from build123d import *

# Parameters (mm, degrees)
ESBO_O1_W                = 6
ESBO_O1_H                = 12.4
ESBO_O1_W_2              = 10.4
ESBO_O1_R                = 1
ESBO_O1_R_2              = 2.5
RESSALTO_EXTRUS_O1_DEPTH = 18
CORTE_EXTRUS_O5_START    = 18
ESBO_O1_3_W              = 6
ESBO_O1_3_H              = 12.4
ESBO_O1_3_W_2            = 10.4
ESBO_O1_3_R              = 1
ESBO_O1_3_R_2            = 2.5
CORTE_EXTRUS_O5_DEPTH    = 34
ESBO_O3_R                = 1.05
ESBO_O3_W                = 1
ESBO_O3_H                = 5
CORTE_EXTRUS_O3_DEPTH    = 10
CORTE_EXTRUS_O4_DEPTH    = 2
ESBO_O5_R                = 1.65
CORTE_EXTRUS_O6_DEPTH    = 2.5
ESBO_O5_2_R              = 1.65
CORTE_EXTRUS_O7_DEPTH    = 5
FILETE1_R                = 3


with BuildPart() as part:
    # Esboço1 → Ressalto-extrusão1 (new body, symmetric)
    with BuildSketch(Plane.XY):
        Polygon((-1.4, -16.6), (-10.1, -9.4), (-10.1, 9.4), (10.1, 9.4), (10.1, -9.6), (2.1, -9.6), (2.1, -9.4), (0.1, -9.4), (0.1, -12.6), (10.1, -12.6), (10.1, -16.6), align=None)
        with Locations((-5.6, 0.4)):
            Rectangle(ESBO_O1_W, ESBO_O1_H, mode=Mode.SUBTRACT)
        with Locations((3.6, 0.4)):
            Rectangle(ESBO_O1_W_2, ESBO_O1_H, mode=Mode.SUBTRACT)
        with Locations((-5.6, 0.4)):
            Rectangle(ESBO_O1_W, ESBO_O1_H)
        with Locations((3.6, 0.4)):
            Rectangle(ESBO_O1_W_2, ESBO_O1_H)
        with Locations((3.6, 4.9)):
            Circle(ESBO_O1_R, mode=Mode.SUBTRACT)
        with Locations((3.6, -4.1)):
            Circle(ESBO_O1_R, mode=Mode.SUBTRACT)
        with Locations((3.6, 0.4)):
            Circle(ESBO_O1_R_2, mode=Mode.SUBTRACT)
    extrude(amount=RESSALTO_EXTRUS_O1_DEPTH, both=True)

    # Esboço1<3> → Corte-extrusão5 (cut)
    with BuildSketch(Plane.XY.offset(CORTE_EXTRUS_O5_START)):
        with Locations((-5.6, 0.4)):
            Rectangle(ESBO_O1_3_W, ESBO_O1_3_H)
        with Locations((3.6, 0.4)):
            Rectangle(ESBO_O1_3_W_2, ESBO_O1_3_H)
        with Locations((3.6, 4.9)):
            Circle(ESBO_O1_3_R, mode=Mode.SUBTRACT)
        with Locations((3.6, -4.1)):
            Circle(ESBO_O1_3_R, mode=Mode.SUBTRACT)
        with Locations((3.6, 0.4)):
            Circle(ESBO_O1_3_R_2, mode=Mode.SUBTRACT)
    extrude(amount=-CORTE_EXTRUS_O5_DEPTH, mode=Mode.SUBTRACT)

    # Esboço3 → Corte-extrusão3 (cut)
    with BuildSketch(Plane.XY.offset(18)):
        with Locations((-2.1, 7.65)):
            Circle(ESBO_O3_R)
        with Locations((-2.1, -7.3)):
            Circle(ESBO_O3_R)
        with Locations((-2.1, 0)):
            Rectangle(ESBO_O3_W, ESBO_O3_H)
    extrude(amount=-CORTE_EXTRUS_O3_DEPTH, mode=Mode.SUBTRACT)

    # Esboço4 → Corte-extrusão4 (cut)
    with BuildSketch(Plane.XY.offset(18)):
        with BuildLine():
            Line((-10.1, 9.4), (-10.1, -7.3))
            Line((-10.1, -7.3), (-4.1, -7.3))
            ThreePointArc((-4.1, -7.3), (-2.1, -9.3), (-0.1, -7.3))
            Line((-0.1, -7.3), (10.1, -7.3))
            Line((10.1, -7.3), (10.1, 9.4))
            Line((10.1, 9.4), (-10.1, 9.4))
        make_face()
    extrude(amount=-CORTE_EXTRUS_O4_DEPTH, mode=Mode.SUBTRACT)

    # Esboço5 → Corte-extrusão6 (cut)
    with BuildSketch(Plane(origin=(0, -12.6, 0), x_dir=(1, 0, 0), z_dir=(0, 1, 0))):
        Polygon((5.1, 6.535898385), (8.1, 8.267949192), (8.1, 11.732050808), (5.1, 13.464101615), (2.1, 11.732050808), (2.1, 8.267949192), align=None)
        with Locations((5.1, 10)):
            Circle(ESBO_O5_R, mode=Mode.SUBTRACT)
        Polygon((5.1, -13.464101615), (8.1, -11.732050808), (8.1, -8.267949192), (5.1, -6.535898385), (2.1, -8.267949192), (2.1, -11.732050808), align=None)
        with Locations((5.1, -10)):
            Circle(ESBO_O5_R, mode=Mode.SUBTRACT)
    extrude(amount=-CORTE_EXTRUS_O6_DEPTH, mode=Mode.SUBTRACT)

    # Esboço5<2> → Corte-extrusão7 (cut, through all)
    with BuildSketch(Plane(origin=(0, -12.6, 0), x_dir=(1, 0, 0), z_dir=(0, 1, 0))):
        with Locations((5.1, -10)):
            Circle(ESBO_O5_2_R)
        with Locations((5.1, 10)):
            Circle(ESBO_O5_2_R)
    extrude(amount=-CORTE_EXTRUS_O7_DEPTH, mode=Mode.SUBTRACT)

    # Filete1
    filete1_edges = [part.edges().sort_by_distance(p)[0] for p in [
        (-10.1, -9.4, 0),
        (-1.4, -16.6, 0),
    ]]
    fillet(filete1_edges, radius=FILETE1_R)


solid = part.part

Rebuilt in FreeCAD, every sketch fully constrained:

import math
import FreeCAD as App
import Part
import Sketcher

V = App.Vector
Q = App.Units.Quantity


def edges_at(feature, points):
    """Names of the edges that pass closest to the given points."""
    edges = feature.Shape.Edges
    near = lambda p: min(range(len(edges)), key=lambda i: edges[i].distToShape(Part.Vertex(*p))[0])
    return sorted({f"Edge{near(p) + 1}" for p in points})

doc = App.newDocument("Part")
body = doc.addObject("PartDesign::Body", "Body")

# Sketch on XY plane
sketch1 = body.newObject("Sketcher::SketchObject", "Sketch")
sketch1.AttachmentSupport = (doc.getObject("XY_Plane"), [""])
sketch1.MapMode = "FlatFace"
sketch1.addGeometry(Part.LineSegment(V(-10.1, -9.4, 0), V(-1.4, -16.6, 0)), False)
sketch1.addGeometry(Part.LineSegment(V(-1.4, -16.6, 0), V(10.1, -16.6, 0)), False)
sketch1.addGeometry(Part.LineSegment(V(10.1, -16.6, 0), V(10.1, -12.6, 0)), False)
sketch1.addGeometry(Part.LineSegment(V(10.1, -12.6, 0), V(0.1, -12.6, 0)), False)
sketch1.addGeometry(Part.LineSegment(V(0.1, -12.6, 0), V(0.1, -9.4, 0)), False)
sketch1.addGeometry(Part.LineSegment(V(0.1, -9.4, 0), V(2.1, -9.4, 0)), False)
sketch1.addGeometry(Part.LineSegment(V(2.1, -9.4, 0), V(2.1, -9.6, 0)), False)
sketch1.addGeometry(Part.LineSegment(V(2.1, -9.6, 0), V(10.1, -9.6, 0)), False)
sketch1.addGeometry(Part.LineSegment(V(10.1, -9.6, 0), V(10.1, 9.4, 0)), False)
sketch1.addGeometry(Part.LineSegment(V(10.1, 9.4, 0), V(-10.1, 9.4, 0)), False)
sketch1.addGeometry(Part.LineSegment(V(-10.1, 9.4, 0), V(-10.1, -9.4, 0)), False)
sketch1.addGeometry(Part.Circle(V(3.6, -4.1, 0), V(0, 0, 1), 1), False)
sketch1.addGeometry(Part.Circle(V(3.6, 0.4, 0), V(0, 0, 1), 2.5), False)
sketch1.addGeometry(Part.Circle(V(3.6, 4.9, 0), V(0, 0, 1), 1), False)
sketch1.addConstraint(Sketcher.Constraint("Coincident", 0, 2, 1, 1))
sketch1.addConstraint(Sketcher.Constraint("Coincident", 1, 2, 2, 1))
sketch1.addConstraint(Sketcher.Constraint("Coincident", 2, 2, 3, 1))
sketch1.addConstraint(Sketcher.Constraint("Coincident", 3, 2, 4, 1))
sketch1.addConstraint(Sketcher.Constraint("Coincident", 4, 2, 5, 1))
sketch1.addConstraint(Sketcher.Constraint("Coincident", 5, 2, 6, 1))
sketch1.addConstraint(Sketcher.Constraint("Coincident", 6, 2, 7, 1))
sketch1.addConstraint(Sketcher.Constraint("Coincident", 7, 2, 8, 1))
sketch1.addConstraint(Sketcher.Constraint("Coincident", 8, 2, 9, 1))
sketch1.addConstraint(Sketcher.Constraint("Coincident", 9, 2, 10, 1))
sketch1.addConstraint(Sketcher.Constraint("Coincident", 10, 2, 0, 1))
sketch1.addConstraint(Sketcher.Constraint("Horizontal", 1))
sketch1.addConstraint(Sketcher.Constraint("Vertical", 2))
sketch1.addConstraint(Sketcher.Constraint("Horizontal", 3))
sketch1.addConstraint(Sketcher.Constraint("Vertical", 4))
sketch1.addConstraint(Sketcher.Constraint("Horizontal", 5))
sketch1.addConstraint(Sketcher.Constraint("Vertical", 6))
sketch1.addConstraint(Sketcher.Constraint("Horizontal", 7))
sketch1.addConstraint(Sketcher.Constraint("Vertical", 8))
sketch1.addConstraint(Sketcher.Constraint("Horizontal", 9))
sketch1.addConstraint(Sketcher.Constraint("Vertical", 10))
sketch1.addConstraint(Sketcher.Constraint("Equal", 11, 13))
sketch1.addConstraint(Sketcher.Constraint("Symmetric", 8, 2, 10, 2, -1, 1))
sketch1.addConstraint(Sketcher.Constraint("Horizontal", 5, 2, 10, 2))
sketch1.addConstraint(Sketcher.Constraint("Vertical", 11, 3, 12, 3))
sketch1.addConstraint(Sketcher.Constraint("Vertical", 12, 3, 13, 3))
sketch1.addConstraint(Sketcher.Constraint("Vertical", 2, 2, 7, 2))
sketch1.addConstraint(Sketcher.Constraint("Diameter", 11, 2.0))
sketch1.addConstraint(Sketcher.Constraint("Diameter", 12, 5.0))
sketch1.addConstraint(Sketcher.Constraint("DistanceX", 3, 2, 3, 1, 10.0))
sketch1.addConstraint(Sketcher.Constraint("DistanceX", 5, 1, 5, 2, 2.0))
sketch1.addConstraint(Sketcher.Constraint("DistanceY", 2, 1, 2, 2, 4.0))
sketch1.addConstraint(Sketcher.Constraint("DistanceY", 8, 1, 8, 2, 19.0))
sketch1.addConstraint(Sketcher.Constraint("DistanceX", 1, 1, 1, 2, 11.5))
sketch1.addConstraint(Sketcher.Constraint("DistanceX", 9, 2, 9, 1, 20.2))
sketch1.addConstraint(Sketcher.Constraint("DistanceY", 4, 1, 4, 2, 3.2))
sketch1.addConstraint(Sketcher.Constraint("DistanceY", 6, 2, 6, 1, 0.2))
sketch1.addConstraint(Sketcher.Constraint("DistanceY", 11, 3, 13, 3, 9.0))
sketch1.addConstraint(Sketcher.Constraint("DistanceX", 0, 2, 11, 3, 5.0))
sketch1.addConstraint(Sketcher.Constraint("DistanceY", 0, 2, 12, 3, 17.0))
sketch1.addConstraint(Sketcher.Constraint("DistanceY", 11, 3, -1, 1, 4.1))
pad1 = body.newObject("PartDesign::Pad", "Pad")
pad1.Profile = sketch1
pad1.Length = 36
pad1.Midplane = True

# Sketch on XY plane
sketch2 = body.newObject("Sketcher::SketchObject", "Sketch001")
sketch2.AttachmentSupport = (doc.getObject("XY_Plane"), [""])
sketch2.MapMode = "FlatFace"
sketch2.AttachmentOffset = App.Placement(V(0, 0, 18), App.Rotation())
sketch2.addGeometry(Part.LineSegment(V(-8.6, 6.6, 0), V(-8.6, -5.8, 0)), False)
sketch2.addGeometry(Part.LineSegment(V(-8.6, -5.8, 0), V(-2.6, -5.8, 0)), False)
sketch2.addGeometry(Part.LineSegment(V(-2.6, -5.8, 0), V(-2.6, 6.6, 0)), False)
sketch2.addGeometry(Part.LineSegment(V(-2.6, 6.6, 0), V(-8.6, 6.6, 0)), False)
sketch2.addGeometry(Part.LineSegment(V(-1.6, 6.6, 0), V(-1.6, -5.8, 0)), False)
sketch2.addGeometry(Part.LineSegment(V(-1.6, -5.8, 0), V(8.8, -5.8, 0)), False)
sketch2.addGeometry(Part.LineSegment(V(8.8, -5.8, 0), V(8.8, 6.6, 0)), False)
sketch2.addGeometry(Part.LineSegment(V(8.8, 6.6, 0), V(-1.6, 6.6, 0)), False)
sketch2.addGeometry(Part.Circle(V(3.6, -4.1, 0), V(0, 0, 1), 1), False)
sketch2.addGeometry(Part.Circle(V(3.6, 0.4, 0), V(0, 0, 1), 2.5), False)
sketch2.addGeometry(Part.Circle(V(3.6, 4.9, 0), V(0, 0, 1), 1), False)
sketch2.addConstraint(Sketcher.Constraint("Coincident", 0, 2, 1, 1))
sketch2.addConstraint(Sketcher.Constraint("Coincident", 1, 2, 2, 1))
sketch2.addConstraint(Sketcher.Constraint("Coincident", 2, 2, 3, 1))
sketch2.addConstraint(Sketcher.Constraint("Coincident", 3, 2, 0, 1))
sketch2.addConstraint(Sketcher.Constraint("Coincident", 4, 2, 5, 1))
sketch2.addConstraint(Sketcher.Constraint("Coincident", 5, 2, 6, 1))
sketch2.addConstraint(Sketcher.Constraint("Coincident", 6, 2, 7, 1))
sketch2.addConstraint(Sketcher.Constraint("Coincident", 7, 2, 4, 1))
sketch2.addConstraint(Sketcher.Constraint("Vertical", 0))
sketch2.addConstraint(Sketcher.Constraint("Horizontal", 1))
sketch2.addConstraint(Sketcher.Constraint("Vertical", 2))
sketch2.addConstraint(Sketcher.Constraint("Horizontal", 3))
sketch2.addConstraint(Sketcher.Constraint("Vertical", 4))
sketch2.addConstraint(Sketcher.Constraint("Horizontal", 5))
sketch2.addConstraint(Sketcher.Constraint("Vertical", 6))
sketch2.addConstraint(Sketcher.Constraint("Horizontal", 7))
sketch2.addConstraint(Sketcher.Constraint("Equal", 8, 10))
sketch2.addConstraint(Sketcher.Constraint("Horizontal", 1, 2, 4, 2))
sketch2.addConstraint(Sketcher.Constraint("Horizontal", 3, 2, 6, 2))
sketch2.addConstraint(Sketcher.Constraint("Vertical", 8, 3, 9, 3))
sketch2.addConstraint(Sketcher.Constraint("Vertical", 9, 3, 10, 3))
sketch2.addConstraint(Sketcher.Constraint("Diameter", 8, 2.0))
sketch2.addConstraint(Sketcher.Constraint("Diameter", 9, 5.0))
sketch2.addConstraint(Sketcher.Constraint("DistanceX", 1, 1, 1, 2, 6.0))
sketch2.addConstraint(Sketcher.Constraint("DistanceX", 5, 1, 5, 2, 10.4))
sketch2.addConstraint(Sketcher.Constraint("DistanceY", 0, 2, 0, 1, 12.4))
sketch2.addConstraint(Sketcher.Constraint("DistanceY", 8, 3, 10, 3, 9.0))
sketch2.addConstraint(Sketcher.Constraint("DistanceX", 1, 2, 4, 2, 1.0))
sketch2.addConstraint(Sketcher.Constraint("DistanceX", -1, 1, 8, 3, 3.6))
sketch2.addConstraint(Sketcher.Constraint("DistanceY", 8, 3, -1, 1, 4.1))
sketch2.addConstraint(Sketcher.Constraint("DistanceY", -1, 1, 9, 3, 0.4))
sketch2.addConstraint(Sketcher.Constraint("DistanceX", 0, 2, -1, 1, 8.6))
sketch2.addConstraint(Sketcher.Constraint("DistanceY", 0, 2, -1, 1, 5.8))
pocket1 = body.newObject("PartDesign::Pocket", "Pocket")
pocket1.Profile = sketch2
pocket1.Length = 34

# Sketch on XY plane
sketch3 = body.newObject("Sketcher::SketchObject", "Sketch002")
sketch3.AttachmentSupport = (doc.getObject("XY_Plane"), [""])
sketch3.MapMode = "FlatFace"
sketch3.AttachmentOffset = App.Placement(V(0, 0, 18), App.Rotation())
sketch3.addGeometry(Part.Circle(V(-2.1, 7.7, 0), V(0, 0, 1), 1.1), False)
sketch3.addGeometry(Part.Circle(V(-2.1, -7.3, 0), V(0, 0, 1), 1.1), False)
sketch3.addGeometry(Part.LineSegment(V(-2.6, 2.5, 0), V(-2.6, -2.5, 0)), False)
sketch3.addGeometry(Part.LineSegment(V(-2.6, -2.5, 0), V(-1.6, -2.5, 0)), False)
sketch3.addGeometry(Part.LineSegment(V(-1.6, -2.5, 0), V(-1.6, 2.5, 0)), False)
sketch3.addGeometry(Part.LineSegment(V(-1.6, 2.5, 0), V(-2.6, 2.5, 0)), False)
sketch3.addConstraint(Sketcher.Constraint("Coincident", 2, 2, 3, 1))
sketch3.addConstraint(Sketcher.Constraint("Coincident", 3, 2, 4, 1))
sketch3.addConstraint(Sketcher.Constraint("Coincident", 4, 2, 5, 1))
sketch3.addConstraint(Sketcher.Constraint("Coincident", 5, 2, 2, 1))
sketch3.addConstraint(Sketcher.Constraint("Vertical", 2))
sketch3.addConstraint(Sketcher.Constraint("Horizontal", 3))
sketch3.addConstraint(Sketcher.Constraint("Vertical", 4))
sketch3.addConstraint(Sketcher.Constraint("Horizontal", 5))
sketch3.addConstraint(Sketcher.Constraint("Equal", 0, 1))
sketch3.addConstraint(Sketcher.Constraint("Vertical", 0, 3, 1, 3))
sketch3.addConstraint(Sketcher.Constraint("Diameter", 0, 2.1))
sketch3.addConstraint(Sketcher.Constraint("DistanceX", 3, 1, 3, 2, 1.0))
sketch3.addConstraint(Sketcher.Constraint("DistanceY", 2, 2, 2, 1, 5.0))
sketch3.addConstraint(Sketcher.Constraint("DistanceX", 0, 3, -1, 1, 2.1))
sketch3.addConstraint(Sketcher.Constraint("DistanceY", 1, 3, -1, 1, 7.3))
sketch3.addConstraint(Sketcher.Constraint("DistanceX", 2, 2, -1, 1, 2.6))
sketch3.addConstraint(Sketcher.Constraint("DistanceY", 2, 2, -1, 1, 2.5))
sketch3.addConstraint(Sketcher.Constraint("DistanceY", -1, 1, 0, 3, 7.65))
pocket2 = body.newObject("PartDesign::Pocket", "Pocket001")
pocket2.Profile = sketch3
pocket2.Length = 10

# Sketch on XY plane
sketch4 = body.newObject("Sketcher::SketchObject", "Sketch003")
sketch4.AttachmentSupport = (doc.getObject("XY_Plane"), [""])
sketch4.MapMode = "FlatFace"
sketch4.AttachmentOffset = App.Placement(V(0, 0, 18), App.Rotation())
sketch4.addGeometry(Part.LineSegment(V(-10.1, 9.4, 0), V(-10.1, -7.3, 0)), False)
sketch4.addGeometry(Part.LineSegment(V(-10.1, -7.3, 0), V(-4.1, -7.3, 0)), False)
sketch4.addGeometry(Part.ArcOfCircle(Part.Circle(V(-2.1, -7.3, 0), V(0, 0, 1), 2), math.radians(180), math.radians(360)), False)
sketch4.addGeometry(Part.LineSegment(V(-0.1, -7.3, 0), V(10.1, -7.3, 0)), False)
sketch4.addGeometry(Part.LineSegment(V(10.1, -7.3, 0), V(10.1, 9.4, 0)), False)
sketch4.addGeometry(Part.LineSegment(V(10.1, 9.4, 0), V(-10.1, 9.4, 0)), False)
sketch4.addConstraint(Sketcher.Constraint("Coincident", 0, 2, 1, 1))
sketch4.addConstraint(Sketcher.Constraint("Coincident", 1, 2, 2, 1))
sketch4.addConstraint(Sketcher.Constraint("Coincident", 2, 2, 3, 1))
sketch4.addConstraint(Sketcher.Constraint("Coincident", 3, 2, 4, 1))
sketch4.addConstraint(Sketcher.Constraint("Coincident", 4, 2, 5, 1))
sketch4.addConstraint(Sketcher.Constraint("Coincident", 5, 2, 0, 1))
sketch4.addConstraint(Sketcher.Constraint("Vertical", 0))
sketch4.addConstraint(Sketcher.Constraint("Horizontal", 1))
sketch4.addConstraint(Sketcher.Constraint("Horizontal", 3))
sketch4.addConstraint(Sketcher.Constraint("Vertical", 4))
sketch4.addConstraint(Sketcher.Constraint("Horizontal", 5))
sketch4.addConstraint(Sketcher.Constraint("Symmetric", 0, 2, 3, 2, -2))
sketch4.addConstraint(Sketcher.Constraint("Horizontal", 2, 3, 0, 2))
sketch4.addConstraint(Sketcher.Constraint("Radius", 2, 2.0))
sketch4.addConstraint(Sketcher.Constraint("DistanceX", 1, 1, 1, 2, 6.0))
sketch4.addConstraint(Sketcher.Constraint("DistanceX", 3, 1, 3, 2, 10.2))
sketch4.addConstraint(Sketcher.Constraint("DistanceY", 0, 2, 0, 1, 16.7))
sketch4.addConstraint(Sketcher.Constraint("DistanceY", 2, 3, -1, 1, 7.3))
pocket3 = body.newObject("PartDesign::Pocket", "Pocket002")
pocket3.Profile = sketch4
pocket3.Length = 2

# Sketch on XZ plane
sketch5 = body.newObject("Sketcher::SketchObject", "Sketch004")
sketch5.AttachmentSupport = (doc.getObject("XZ_Plane"), [""])
sketch5.MapMode = "FlatFace"
sketch5.AttachmentOffset = App.Placement(V(0, 0, 12.6), App.Rotation())
sketch5.addGeometry(Part.LineSegment(V(5.1, -6.5, 0), V(8.1, -8.3, 0)), False)
sketch5.addGeometry(Part.LineSegment(V(8.1, -8.3, 0), V(8.1, -11.7, 0)), False)
sketch5.addGeometry(Part.LineSegment(V(8.1, -11.7, 0), V(5.1, -13.5, 0)), False)
sketch5.addGeometry(Part.LineSegment(V(5.1, -13.5, 0), V(2.1, -11.7, 0)), False)
sketch5.addGeometry(Part.LineSegment(V(2.1, -11.7, 0), V(2.1, -8.3, 0)), False)
sketch5.addGeometry(Part.LineSegment(V(2.1, -8.3, 0), V(5.1, -6.5, 0)), False)
sketch5.addGeometry(Part.Circle(V(5.1, -10, 0), V(0, 0, 1), 1.6), False)
sketch5.addGeometry(Part.LineSegment(V(5.1, 13.5, 0), V(8.1, 11.7, 0)), False)
sketch5.addGeometry(Part.LineSegment(V(8.1, 11.7, 0), V(8.1, 8.3, 0)), False)
sketch5.addGeometry(Part.LineSegment(V(8.1, 8.3, 0), V(5.1, 6.5, 0)), False)
sketch5.addGeometry(Part.LineSegment(V(5.1, 6.5, 0), V(2.1, 8.3, 0)), False)
sketch5.addGeometry(Part.LineSegment(V(2.1, 8.3, 0), V(2.1, 11.7, 0)), False)
sketch5.addGeometry(Part.LineSegment(V(2.1, 11.7, 0), V(5.1, 13.5, 0)), False)
sketch5.addGeometry(Part.Circle(V(5.1, 10, 0), V(0, 0, 1), 1.6), False)
sketch5.addConstraint(Sketcher.Constraint("Coincident", 0, 2, 1, 1))
sketch5.addConstraint(Sketcher.Constraint("Coincident", 1, 2, 2, 1))
sketch5.addConstraint(Sketcher.Constraint("Coincident", 2, 2, 3, 1))
sketch5.addConstraint(Sketcher.Constraint("Coincident", 3, 2, 4, 1))
sketch5.addConstraint(Sketcher.Constraint("Coincident", 4, 2, 5, 1))
sketch5.addConstraint(Sketcher.Constraint("Coincident", 5, 2, 0, 1))
sketch5.addConstraint(Sketcher.Constraint("Coincident", 7, 2, 8, 1))
sketch5.addConstraint(Sketcher.Constraint("Coincident", 8, 2, 9, 1))
sketch5.addConstraint(Sketcher.Constraint("Coincident", 9, 2, 10, 1))
sketch5.addConstraint(Sketcher.Constraint("Coincident", 10, 2, 11, 1))
sketch5.addConstraint(Sketcher.Constraint("Coincident", 11, 2, 12, 1))
sketch5.addConstraint(Sketcher.Constraint("Coincident", 12, 2, 7, 1))
sketch5.addConstraint(Sketcher.Constraint("Vertical", 1))
sketch5.addConstraint(Sketcher.Constraint("Vertical", 4))
sketch5.addConstraint(Sketcher.Constraint("Vertical", 8))
sketch5.addConstraint(Sketcher.Constraint("Vertical", 11))
sketch5.addConstraint(Sketcher.Constraint("Equal", 6, 13))
sketch5.addConstraint(Sketcher.Constraint("Symmetric", 6, 3, 13, 3, -1))
sketch5.addConstraint(Sketcher.Constraint("Symmetric", 1, 2, 7, 2, -1))
sketch5.addConstraint(Sketcher.Constraint("Symmetric", 5, 2, 9, 2, -1))
sketch5.addConstraint(Sketcher.Constraint("Symmetric", 4, 2, 10, 2, -1))
sketch5.addConstraint(Sketcher.Constraint("Symmetric", 2, 2, 12, 2, -1))
sketch5.addConstraint(Sketcher.Constraint("Parallel", 0, 3))
sketch5.addConstraint(Sketcher.Constraint("Parallel", 2, 5))
sketch5.addConstraint(Sketcher.Constraint("Parallel", 3, 7))
sketch5.addConstraint(Sketcher.Constraint("Parallel", 5, 9))
sketch5.addConstraint(Sketcher.Constraint("Parallel", 9, 12))
sketch5.addConstraint(Sketcher.Constraint("Horizontal", 1, 2, 3, 2))
sketch5.addConstraint(Sketcher.Constraint("Horizontal", 0, 2, 4, 2))
sketch5.addConstraint(Sketcher.Constraint("Vertical", 13, 3, 2, 2))
sketch5.addConstraint(Sketcher.Constraint("Diameter", 6, 3.3))
sketch5.addConstraint(Sketcher.Constraint("Angle", 0, Q("-30 deg")))
sketch5.addConstraint(Sketcher.Constraint("DistanceY", 6, 3, -1, 1, 10.0))
sketch5.addConstraint(Sketcher.Constraint("DistanceX", 6, 3, 0, 2, 3.0))
sketch5.addConstraint(Sketcher.Constraint("DistanceY", 0, 2, 7, 2, 20.0))
sketch5.addConstraint(Sketcher.Constraint("DistanceX", -1, 1, 6, 3, 5.1))
sketch5.addConstraint(Sketcher.Constraint("DistanceY", 1, 2, 1, 1, 3.464102))
pocket4 = body.newObject("PartDesign::Pocket", "Pocket003")
pocket4.Profile = sketch5
pocket4.Length = 2.5
pocket4.Reversed = True

# Sketch on XZ plane
sketch6 = body.newObject("Sketcher::SketchObject", "Sketch005")
sketch6.AttachmentSupport = (doc.getObject("XZ_Plane"), [""])
sketch6.MapMode = "FlatFace"
sketch6.AttachmentOffset = App.Placement(V(0, 0, 12.6), App.Rotation())
sketch6.addGeometry(Part.Circle(V(5.1, 10, 0), V(0, 0, 1), 1.6), False)
sketch6.addGeometry(Part.Circle(V(5.1, -10, 0), V(0, 0, 1), 1.6), False)
sketch6.addConstraint(Sketcher.Constraint("Equal", 0, 1))
sketch6.addConstraint(Sketcher.Constraint("Symmetric", 0, 3, 1, 3, -1))
sketch6.addConstraint(Sketcher.Constraint("Diameter", 0, 3.3))
sketch6.addConstraint(Sketcher.Constraint("DistanceY", -1, 1, 0, 3, 10.0))
sketch6.addConstraint(Sketcher.Constraint("DistanceX", -1, 1, 0, 3, 5.1))
pocket5 = body.newObject("PartDesign::Pocket", "Pocket004")
pocket5.Profile = sketch6
pocket5.Type = "ThroughAll"
pocket5.Reversed = True
doc.recompute()

fillet = body.newObject("PartDesign::Fillet", "Fillet")
fillet.Base = (pocket5, edges_at(pocket5, [(-10.1, -9.4, 0), (-1.4, -16.6, 0)]))
fillet.Radius = 3

doc.recompute()
